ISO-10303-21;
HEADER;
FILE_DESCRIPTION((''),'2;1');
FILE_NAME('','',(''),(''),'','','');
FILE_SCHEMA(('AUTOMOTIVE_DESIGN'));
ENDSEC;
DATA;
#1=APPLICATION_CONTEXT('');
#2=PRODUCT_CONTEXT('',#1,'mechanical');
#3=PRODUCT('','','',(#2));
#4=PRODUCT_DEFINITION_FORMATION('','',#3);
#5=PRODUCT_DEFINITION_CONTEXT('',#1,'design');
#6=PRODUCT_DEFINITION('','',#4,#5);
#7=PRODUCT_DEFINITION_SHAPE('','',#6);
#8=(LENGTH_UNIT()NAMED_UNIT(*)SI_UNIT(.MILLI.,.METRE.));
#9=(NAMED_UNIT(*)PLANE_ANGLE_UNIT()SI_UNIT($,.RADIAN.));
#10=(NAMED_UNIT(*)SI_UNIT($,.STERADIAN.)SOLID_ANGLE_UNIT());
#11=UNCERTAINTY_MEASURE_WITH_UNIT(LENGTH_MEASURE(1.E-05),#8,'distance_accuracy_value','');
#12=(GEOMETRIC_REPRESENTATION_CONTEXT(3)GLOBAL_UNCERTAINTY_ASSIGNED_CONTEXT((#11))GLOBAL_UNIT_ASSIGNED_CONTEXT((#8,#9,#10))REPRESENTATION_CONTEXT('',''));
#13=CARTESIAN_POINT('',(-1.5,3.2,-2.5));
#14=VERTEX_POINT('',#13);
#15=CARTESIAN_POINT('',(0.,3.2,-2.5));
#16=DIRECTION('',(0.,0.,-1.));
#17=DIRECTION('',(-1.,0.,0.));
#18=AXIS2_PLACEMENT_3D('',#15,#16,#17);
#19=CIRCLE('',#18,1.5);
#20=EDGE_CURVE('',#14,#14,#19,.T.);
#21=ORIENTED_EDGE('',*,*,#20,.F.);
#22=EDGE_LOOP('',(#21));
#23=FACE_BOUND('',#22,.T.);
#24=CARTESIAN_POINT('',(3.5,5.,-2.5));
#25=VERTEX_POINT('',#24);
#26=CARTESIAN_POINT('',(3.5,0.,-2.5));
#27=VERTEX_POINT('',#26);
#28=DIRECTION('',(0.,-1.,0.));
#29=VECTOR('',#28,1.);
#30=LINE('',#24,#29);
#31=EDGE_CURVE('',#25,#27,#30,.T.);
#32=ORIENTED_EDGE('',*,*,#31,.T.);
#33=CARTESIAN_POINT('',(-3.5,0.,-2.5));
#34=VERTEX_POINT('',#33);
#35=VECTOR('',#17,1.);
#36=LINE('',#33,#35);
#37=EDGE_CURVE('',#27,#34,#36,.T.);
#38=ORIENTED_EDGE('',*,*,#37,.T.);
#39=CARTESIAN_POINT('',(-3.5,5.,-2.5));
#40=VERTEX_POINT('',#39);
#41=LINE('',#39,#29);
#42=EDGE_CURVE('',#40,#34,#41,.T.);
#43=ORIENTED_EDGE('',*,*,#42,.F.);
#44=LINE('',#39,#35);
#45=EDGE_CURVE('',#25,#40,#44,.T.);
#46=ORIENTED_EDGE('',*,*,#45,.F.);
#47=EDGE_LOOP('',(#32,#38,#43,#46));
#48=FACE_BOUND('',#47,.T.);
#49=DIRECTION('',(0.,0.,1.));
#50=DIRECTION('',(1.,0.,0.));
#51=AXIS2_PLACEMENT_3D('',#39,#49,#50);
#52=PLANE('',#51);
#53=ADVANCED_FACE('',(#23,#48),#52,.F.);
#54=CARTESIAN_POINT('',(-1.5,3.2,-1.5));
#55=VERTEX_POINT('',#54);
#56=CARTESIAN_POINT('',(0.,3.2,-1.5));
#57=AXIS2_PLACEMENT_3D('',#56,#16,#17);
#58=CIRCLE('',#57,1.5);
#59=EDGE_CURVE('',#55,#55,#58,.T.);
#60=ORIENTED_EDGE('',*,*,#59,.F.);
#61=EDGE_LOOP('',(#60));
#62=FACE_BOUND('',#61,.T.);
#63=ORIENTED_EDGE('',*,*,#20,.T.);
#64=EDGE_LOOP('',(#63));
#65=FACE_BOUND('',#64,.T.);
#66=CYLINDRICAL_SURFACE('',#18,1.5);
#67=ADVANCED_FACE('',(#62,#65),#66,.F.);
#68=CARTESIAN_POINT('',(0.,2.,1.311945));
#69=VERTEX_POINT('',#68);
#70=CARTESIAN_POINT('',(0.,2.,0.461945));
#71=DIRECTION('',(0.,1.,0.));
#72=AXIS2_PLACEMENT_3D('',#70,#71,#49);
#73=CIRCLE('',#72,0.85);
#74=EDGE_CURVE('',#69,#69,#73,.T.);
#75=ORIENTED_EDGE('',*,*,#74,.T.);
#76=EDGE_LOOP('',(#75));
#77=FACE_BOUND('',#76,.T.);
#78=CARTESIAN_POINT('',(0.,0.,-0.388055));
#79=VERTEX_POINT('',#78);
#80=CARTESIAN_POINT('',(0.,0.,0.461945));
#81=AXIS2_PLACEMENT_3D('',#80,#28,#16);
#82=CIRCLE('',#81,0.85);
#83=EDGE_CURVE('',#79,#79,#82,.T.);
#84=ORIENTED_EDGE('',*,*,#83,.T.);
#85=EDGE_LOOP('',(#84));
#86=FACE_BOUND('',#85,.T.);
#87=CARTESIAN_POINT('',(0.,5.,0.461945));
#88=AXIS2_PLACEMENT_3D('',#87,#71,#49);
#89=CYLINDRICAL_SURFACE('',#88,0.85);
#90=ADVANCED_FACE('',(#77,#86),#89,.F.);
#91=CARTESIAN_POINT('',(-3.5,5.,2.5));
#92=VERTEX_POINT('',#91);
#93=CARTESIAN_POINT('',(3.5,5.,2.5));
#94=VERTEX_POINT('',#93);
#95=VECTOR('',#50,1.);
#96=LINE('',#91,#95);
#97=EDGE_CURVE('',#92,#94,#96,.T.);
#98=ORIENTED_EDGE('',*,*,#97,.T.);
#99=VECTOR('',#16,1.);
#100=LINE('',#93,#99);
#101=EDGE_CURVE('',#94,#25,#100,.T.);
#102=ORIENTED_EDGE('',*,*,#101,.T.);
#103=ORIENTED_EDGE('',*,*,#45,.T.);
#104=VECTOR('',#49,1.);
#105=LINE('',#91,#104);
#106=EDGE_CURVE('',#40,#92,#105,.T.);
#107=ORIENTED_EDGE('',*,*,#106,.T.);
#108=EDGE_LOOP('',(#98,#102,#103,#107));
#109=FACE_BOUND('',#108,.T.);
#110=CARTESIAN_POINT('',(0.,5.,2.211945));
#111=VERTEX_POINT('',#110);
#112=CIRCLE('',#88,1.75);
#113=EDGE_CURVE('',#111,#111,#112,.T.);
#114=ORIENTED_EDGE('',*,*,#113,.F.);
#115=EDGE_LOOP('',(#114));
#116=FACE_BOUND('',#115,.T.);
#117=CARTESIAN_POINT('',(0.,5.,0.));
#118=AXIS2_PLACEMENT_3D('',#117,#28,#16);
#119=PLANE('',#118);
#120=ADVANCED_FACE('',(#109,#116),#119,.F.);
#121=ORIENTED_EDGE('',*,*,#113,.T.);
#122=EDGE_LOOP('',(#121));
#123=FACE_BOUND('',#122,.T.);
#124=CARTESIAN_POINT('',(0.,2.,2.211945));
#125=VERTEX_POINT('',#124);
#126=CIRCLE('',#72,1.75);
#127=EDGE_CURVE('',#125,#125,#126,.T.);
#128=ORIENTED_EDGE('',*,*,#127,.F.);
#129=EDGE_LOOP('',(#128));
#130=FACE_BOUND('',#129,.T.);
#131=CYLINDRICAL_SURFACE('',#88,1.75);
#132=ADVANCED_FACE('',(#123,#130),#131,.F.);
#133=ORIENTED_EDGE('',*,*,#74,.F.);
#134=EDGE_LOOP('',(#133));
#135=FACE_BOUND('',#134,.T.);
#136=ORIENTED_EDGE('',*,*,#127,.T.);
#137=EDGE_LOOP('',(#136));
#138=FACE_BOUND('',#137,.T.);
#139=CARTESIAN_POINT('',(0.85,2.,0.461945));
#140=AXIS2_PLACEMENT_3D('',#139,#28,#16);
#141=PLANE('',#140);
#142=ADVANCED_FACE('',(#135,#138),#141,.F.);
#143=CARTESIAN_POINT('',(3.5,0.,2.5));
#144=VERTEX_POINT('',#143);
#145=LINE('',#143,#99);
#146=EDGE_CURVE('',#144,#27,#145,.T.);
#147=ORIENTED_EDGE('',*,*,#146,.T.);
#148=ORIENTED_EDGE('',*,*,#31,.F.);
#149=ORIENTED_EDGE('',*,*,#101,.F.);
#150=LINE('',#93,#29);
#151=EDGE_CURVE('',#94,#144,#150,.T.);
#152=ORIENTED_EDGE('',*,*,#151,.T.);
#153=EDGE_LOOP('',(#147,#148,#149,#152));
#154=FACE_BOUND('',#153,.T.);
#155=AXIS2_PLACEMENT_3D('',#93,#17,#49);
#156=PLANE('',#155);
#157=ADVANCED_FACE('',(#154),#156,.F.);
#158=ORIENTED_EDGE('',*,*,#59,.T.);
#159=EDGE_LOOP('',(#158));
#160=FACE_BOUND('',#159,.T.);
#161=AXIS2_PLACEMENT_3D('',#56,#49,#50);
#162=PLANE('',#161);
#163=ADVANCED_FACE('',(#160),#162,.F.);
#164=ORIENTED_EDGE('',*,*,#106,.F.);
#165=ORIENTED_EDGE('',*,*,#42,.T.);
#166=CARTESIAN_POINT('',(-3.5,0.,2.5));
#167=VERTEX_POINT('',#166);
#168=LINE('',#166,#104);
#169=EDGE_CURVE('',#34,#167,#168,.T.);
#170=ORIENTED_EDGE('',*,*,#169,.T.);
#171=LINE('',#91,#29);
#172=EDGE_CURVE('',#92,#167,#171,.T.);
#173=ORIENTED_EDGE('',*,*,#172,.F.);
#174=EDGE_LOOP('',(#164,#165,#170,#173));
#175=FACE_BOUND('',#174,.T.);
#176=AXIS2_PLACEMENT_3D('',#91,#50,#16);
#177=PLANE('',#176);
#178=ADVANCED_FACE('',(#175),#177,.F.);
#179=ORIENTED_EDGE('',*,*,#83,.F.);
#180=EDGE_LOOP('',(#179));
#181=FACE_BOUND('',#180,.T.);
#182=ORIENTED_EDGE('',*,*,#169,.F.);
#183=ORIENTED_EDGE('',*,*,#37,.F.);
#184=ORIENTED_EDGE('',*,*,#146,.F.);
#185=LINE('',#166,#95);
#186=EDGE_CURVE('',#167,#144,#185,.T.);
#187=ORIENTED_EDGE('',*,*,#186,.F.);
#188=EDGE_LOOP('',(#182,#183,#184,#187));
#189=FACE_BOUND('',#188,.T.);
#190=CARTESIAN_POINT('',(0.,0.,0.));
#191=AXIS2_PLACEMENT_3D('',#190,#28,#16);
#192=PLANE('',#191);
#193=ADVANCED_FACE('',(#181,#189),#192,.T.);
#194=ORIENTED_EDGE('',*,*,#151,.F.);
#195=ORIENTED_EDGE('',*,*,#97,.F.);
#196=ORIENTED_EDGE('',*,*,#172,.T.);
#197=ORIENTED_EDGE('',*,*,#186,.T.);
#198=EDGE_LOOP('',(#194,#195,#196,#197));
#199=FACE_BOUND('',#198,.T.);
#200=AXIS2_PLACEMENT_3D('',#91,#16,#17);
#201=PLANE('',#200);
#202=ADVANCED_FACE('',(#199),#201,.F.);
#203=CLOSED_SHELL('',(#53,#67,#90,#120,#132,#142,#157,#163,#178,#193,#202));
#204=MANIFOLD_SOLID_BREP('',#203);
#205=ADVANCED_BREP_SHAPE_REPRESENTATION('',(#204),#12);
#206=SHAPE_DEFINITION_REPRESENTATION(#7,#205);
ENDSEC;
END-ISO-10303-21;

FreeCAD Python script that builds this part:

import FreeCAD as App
import Part
import Sketcher
from FreeCAD import Vector

doc = App.newDocument("Part")
body = doc.addObject("PartDesign::Body", "Body")

# Sketch on XZ plane
sketch1 = doc.addObject("Sketcher::SketchObject", "Sketch")
body.addObject(sketch1)
sketch1.AttachmentSupport = (doc.XZ_Plane, [""])
sketch1.MapMode = "FlatFace"
sketch1.addGeometry([
    Part.LineSegment(Vector(-4, -2, 0), Vector(-4, 2, 0)),
    Part.LineSegment(Vector(-4, 2, 0), Vector(4, 2, 0)),
    Part.LineSegment(Vector(4, 2, 0), Vector(4, -2, 0)),
    Part.LineSegment(Vector(4, -2, 0), Vector(-4, -2, 0)),
], False)
sketch1.addConstraint([
    Sketcher.Constraint("Coincident", 0, 2, 1, 1),
    Sketcher.Constraint("Coincident", 1, 2, 2, 1),
    Sketcher.Constraint("Coincident", 2, 2, 3, 1),
    Sketcher.Constraint("Coincident", 3, 2, 0, 1),
    Sketcher.Constraint("Vertical", 0),
    Sketcher.Constraint("Horizontal", 1),
    Sketcher.Constraint("Vertical", 2),
    Sketcher.Constraint("Horizontal", 3),
    Sketcher.Constraint("Symmetric", 0, 2, 2, 2, -1, 1),
    Sketcher.Constraint("DistanceX", 1, 1, 1, 2, 7.0),
    Sketcher.Constraint("DistanceY", 0, 1, 0, 2, 5.0),
])
pad1 = doc.addObject("PartDesign::Pad", "Pad")
body.addObject(pad1)
pad1.Profile = sketch1
pad1.Length = 5
pad1.Reversed = True

# Sketch on XY plane
sketch2 = doc.addObject("Sketcher::SketchObject", "Sketch001")
body.addObject(sketch2)
sketch2.AttachmentSupport = (doc.XY_Plane, [""])
sketch2.MapMode = "FlatFace"
sketch2.AttachmentOffset = App.Placement(Vector(0, 0, -2.5), App.Rotation())
sketch2.addGeometry(Part.Circle(Vector(0, 3.2, 0), Vector(0, 0, 1), 1.5), False)
sketch2.addConstraint([
    Sketcher.Constraint("PointOnObject", 0, 3, -2),
    Sketcher.Constraint("Diameter", 0, 3.0),
    Sketcher.Constraint("DistanceY", -1, 1, 0, 3, 3.2),
])
doc.recompute()
hole = doc.addObject("PartDesign::Hole", "Hole")
body.addObject(hole)
hole.Profile = sketch2
hole.ThreadType = "None"
hole.Diameter = 3
hole.DepthType = "Dimension"
hole.Depth = 1
hole.DrillPoint = "Flat"
hole.Reversed = True

# Sketch on XZ plane
sketch3 = doc.addObject("Sketcher::SketchObject", "Sketch002")
body.addObject(sketch3)
sketch3.AttachmentSupport = (doc.XZ_Plane, [""])
sketch3.MapMode = "FlatFace"
sketch3.AttachmentOffset = App.Placement(Vector(0, 0, -5), App.Rotation())
sketch3.addGeometry(Part.Circle(Vector(0, 0.5, 0), Vector(0, 0, 1), 0.8), False)
sketch3.addConstraint([
    Sketcher.Constraint("PointOnObject", 0, 3, -2),
    Sketcher.Constraint("Diameter", 0, 1.7),
    Sketcher.Constraint("DistanceY", -1, 1, 0, 3, 0.461945),
])
doc.recompute()
hole2 = doc.addObject("PartDesign::Hole", "Hole001")
body.addObject(hole2)
hole2.Profile = sketch3
hole2.ThreadType = "None"
hole2.Diameter = 1.7
hole2.DepthType = "Dimension"
hole2.Depth = 5
hole2.DrillPoint = "Flat"
hole2.HoleCutType = "Counterbore"
hole2.HoleCutDiameter = 3.5
hole2.HoleCutDepth = 3
hole2.Reversed = True

doc.recompute()
